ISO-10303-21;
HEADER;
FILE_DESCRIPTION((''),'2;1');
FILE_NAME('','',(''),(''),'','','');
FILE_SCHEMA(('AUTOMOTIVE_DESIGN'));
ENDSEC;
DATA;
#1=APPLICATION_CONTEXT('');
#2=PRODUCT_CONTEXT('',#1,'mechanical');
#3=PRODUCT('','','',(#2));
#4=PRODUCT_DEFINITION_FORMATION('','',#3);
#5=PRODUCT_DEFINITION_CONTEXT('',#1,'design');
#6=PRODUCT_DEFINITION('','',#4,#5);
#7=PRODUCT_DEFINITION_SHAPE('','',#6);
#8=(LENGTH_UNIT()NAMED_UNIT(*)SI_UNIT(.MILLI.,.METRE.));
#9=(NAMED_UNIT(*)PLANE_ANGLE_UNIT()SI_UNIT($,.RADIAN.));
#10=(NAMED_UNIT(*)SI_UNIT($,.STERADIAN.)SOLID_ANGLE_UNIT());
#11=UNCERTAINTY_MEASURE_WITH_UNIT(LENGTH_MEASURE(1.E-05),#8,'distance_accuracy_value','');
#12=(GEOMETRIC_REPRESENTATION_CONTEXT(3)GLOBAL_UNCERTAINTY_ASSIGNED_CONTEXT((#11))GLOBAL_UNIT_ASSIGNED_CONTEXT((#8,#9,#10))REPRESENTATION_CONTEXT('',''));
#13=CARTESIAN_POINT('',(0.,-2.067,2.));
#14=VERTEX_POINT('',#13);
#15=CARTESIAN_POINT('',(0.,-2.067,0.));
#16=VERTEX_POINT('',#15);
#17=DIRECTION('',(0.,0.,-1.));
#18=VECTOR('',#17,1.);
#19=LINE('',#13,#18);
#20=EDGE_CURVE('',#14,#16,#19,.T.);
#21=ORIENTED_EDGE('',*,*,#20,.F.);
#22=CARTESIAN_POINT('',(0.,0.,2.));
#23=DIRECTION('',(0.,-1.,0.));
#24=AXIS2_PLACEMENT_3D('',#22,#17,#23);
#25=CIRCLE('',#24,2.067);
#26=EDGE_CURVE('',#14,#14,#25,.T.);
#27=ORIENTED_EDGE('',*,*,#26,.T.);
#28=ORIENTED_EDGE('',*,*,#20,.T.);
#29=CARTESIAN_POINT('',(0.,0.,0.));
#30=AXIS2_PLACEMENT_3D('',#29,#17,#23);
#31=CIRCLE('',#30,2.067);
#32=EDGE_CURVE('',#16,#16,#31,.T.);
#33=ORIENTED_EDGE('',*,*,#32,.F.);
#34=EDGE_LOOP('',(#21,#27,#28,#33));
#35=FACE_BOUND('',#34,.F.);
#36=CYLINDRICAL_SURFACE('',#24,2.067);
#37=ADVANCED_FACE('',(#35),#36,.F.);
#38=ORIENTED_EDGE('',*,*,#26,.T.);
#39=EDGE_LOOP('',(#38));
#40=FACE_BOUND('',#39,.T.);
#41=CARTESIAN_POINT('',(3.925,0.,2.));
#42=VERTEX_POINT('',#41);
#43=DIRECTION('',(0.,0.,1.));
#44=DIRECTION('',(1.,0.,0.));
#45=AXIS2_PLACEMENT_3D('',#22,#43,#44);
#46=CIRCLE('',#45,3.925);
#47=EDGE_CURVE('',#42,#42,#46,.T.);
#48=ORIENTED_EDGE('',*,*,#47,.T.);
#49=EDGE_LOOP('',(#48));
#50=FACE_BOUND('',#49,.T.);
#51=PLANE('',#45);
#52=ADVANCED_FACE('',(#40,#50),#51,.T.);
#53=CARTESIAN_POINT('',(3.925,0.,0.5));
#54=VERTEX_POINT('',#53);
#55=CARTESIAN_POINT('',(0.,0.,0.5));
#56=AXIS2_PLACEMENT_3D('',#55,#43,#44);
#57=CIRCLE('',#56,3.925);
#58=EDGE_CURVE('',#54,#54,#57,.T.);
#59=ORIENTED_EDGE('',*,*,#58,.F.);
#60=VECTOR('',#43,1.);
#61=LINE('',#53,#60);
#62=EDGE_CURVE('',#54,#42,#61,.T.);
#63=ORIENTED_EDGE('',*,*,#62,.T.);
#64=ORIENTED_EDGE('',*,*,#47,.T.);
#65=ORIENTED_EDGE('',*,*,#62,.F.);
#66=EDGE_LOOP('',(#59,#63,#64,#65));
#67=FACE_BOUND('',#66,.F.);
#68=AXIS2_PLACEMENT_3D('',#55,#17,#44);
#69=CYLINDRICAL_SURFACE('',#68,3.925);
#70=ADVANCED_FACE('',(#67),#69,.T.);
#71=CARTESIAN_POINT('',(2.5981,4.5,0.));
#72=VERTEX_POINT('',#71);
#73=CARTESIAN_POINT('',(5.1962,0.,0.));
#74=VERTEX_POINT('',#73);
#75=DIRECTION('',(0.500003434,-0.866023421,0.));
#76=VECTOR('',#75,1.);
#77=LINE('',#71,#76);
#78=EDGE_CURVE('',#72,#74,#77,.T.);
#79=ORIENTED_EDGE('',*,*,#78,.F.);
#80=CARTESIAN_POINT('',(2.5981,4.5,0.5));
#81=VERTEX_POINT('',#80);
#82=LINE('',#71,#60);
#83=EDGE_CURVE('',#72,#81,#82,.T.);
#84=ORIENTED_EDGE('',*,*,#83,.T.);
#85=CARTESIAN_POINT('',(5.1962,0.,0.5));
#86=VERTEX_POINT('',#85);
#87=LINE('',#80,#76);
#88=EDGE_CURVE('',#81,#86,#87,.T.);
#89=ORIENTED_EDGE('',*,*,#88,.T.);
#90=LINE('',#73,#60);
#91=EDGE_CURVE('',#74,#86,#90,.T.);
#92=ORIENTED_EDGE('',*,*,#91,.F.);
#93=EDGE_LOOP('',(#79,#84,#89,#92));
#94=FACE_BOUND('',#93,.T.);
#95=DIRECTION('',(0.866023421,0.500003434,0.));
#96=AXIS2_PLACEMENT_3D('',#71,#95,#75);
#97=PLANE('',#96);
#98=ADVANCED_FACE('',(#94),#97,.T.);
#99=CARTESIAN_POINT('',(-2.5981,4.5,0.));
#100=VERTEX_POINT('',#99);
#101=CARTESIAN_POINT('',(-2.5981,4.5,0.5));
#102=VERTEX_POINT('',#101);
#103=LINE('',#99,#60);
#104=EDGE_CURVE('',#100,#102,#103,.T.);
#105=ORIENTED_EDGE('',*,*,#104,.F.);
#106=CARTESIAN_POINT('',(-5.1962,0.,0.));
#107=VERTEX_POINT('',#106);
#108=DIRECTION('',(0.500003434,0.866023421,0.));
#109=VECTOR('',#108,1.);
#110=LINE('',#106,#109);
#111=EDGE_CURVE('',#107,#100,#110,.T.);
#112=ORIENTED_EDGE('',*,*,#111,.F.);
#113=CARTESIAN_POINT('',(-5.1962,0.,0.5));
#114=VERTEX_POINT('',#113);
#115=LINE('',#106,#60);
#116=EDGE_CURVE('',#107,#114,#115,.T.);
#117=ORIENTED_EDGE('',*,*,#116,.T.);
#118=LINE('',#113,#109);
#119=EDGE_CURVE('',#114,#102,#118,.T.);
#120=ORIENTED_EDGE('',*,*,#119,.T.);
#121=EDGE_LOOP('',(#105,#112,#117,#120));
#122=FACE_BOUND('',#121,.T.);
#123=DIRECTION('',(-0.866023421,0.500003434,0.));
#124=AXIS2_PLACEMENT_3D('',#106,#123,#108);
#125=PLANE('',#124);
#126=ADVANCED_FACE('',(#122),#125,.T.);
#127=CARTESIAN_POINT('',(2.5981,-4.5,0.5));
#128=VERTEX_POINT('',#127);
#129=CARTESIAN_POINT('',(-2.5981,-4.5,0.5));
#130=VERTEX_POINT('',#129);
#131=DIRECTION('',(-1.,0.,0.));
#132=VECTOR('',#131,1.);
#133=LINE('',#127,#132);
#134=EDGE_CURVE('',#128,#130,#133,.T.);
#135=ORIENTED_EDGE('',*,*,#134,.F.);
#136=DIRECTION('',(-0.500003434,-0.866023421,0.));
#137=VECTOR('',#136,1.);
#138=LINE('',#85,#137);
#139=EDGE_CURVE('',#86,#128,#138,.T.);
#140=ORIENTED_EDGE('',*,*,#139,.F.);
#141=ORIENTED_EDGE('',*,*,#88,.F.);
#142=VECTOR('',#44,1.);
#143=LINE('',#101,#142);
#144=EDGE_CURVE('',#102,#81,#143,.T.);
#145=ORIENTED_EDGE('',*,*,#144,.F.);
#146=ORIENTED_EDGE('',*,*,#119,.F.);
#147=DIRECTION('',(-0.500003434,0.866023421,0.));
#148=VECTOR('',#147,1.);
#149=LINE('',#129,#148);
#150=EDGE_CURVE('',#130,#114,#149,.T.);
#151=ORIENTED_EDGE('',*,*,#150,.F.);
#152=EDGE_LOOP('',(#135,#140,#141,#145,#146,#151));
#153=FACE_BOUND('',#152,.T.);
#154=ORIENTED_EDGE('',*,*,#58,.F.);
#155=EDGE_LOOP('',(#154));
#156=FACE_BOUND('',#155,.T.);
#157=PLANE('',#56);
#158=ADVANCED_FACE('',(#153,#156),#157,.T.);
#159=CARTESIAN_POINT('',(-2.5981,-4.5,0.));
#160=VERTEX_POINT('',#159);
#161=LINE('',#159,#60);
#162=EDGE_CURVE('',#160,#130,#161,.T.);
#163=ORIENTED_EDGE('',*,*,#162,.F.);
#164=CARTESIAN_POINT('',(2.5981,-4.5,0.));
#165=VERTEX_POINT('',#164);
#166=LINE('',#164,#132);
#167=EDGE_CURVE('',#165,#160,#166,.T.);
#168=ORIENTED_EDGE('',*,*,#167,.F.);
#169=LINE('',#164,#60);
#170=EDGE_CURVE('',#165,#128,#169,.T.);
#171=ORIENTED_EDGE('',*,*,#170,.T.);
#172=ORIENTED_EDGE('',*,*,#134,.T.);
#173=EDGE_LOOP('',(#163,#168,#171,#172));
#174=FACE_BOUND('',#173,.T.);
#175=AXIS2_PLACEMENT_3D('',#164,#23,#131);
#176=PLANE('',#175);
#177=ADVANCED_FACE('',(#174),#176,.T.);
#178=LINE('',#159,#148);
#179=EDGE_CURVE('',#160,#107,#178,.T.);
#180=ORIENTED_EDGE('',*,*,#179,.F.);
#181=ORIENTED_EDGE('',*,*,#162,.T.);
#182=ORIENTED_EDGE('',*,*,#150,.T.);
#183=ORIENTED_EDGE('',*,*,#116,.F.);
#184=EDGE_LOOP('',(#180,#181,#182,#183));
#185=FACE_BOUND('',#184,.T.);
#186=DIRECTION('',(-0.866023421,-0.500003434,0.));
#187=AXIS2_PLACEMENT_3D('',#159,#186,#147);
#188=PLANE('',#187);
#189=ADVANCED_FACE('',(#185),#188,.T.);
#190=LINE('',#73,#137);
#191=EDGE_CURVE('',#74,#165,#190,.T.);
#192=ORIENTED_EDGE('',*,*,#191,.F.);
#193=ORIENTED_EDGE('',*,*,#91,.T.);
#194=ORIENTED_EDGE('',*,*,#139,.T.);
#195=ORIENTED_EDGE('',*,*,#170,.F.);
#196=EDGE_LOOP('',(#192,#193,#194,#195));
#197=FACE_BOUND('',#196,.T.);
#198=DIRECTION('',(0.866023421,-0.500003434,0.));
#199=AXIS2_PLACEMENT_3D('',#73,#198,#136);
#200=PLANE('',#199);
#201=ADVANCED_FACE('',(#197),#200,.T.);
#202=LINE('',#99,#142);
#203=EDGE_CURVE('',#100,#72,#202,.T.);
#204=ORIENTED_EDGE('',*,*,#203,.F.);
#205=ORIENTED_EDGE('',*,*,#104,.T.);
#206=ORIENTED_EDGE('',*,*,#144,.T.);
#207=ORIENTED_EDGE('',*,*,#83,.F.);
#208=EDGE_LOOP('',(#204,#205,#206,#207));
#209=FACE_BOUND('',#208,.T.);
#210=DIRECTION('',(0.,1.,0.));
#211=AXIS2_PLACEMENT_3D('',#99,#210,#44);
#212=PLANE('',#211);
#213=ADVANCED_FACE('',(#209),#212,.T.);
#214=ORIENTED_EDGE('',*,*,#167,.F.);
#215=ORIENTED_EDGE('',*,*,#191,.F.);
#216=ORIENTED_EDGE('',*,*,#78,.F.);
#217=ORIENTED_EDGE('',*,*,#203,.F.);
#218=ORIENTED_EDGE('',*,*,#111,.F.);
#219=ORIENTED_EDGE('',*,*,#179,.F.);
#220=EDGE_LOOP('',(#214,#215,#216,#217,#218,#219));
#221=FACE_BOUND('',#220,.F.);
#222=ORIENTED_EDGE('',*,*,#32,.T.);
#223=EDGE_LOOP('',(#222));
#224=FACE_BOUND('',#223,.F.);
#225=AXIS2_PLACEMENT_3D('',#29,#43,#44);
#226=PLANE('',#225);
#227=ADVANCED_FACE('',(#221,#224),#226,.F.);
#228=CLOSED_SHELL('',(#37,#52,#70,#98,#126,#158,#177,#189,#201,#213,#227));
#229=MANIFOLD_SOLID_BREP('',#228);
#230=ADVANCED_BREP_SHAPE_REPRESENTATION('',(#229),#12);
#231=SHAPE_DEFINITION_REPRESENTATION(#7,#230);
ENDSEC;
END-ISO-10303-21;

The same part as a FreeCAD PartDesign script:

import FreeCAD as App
import Part
import Sketcher

V = App.Vector
Q = App.Units.Quantity


def add_polygon(sketch, points):
    """Adds a closed chain of lines whose ends are joined by coincident constraints."""
    first, n = sketch.GeometryCount, len(points)
    for a, b in zip(points, points[1:] + points[:1]):
        sketch.addGeometry(Part.LineSegment(App.Vector(*a, 0), App.Vector(*b, 0)), False)
    for i in range(n):
        sketch.addConstraint(Sketcher.Constraint("Coincident", first + i, 2, first + (i + 1) % n, 1))

doc = App.newDocument("Part")
params = doc.addObject("Spreadsheet::Sheet", "Params")
for row, (alias, value) in enumerate([
    ("pad1_length", "0.5 mm"),
    ("sketch2_diameter", "7.85 mm"),
    ("pad2_length", "1.5 mm"),
    ("hole_diameter", "4.134 mm"),
    ("hole_depth", "2 mm"),
], start=1):
    params.set(f"A{row}", alias)
    params.set(f"B{row}", "=" + value)
    params.setAlias(f"B{row}", alias)

body = doc.addObject("PartDesign::Body", "Body")

# Sketch on XY plane
sketch1 = body.newObject("Sketcher::SketchObject", "Sketch")
sketch1.AttachmentSupport = (doc.getObject("XY_Plane"), [""])
sketch1.MapMode = "FlatFace"
add_polygon(sketch1, [(3, -4), (5, 0), (3, 4), (-3, 4), (-5, 0), (-3, -4)])  # lines 0-5
sketch1.addConstraint([
    Sketcher.Constraint("Horizontal", 2),
    Sketcher.Constraint("Horizontal", 5),
    Sketcher.Constraint("Symmetric", 0, 2, 3, 2, -1, 1),
    Sketcher.Constraint("Symmetric", 1, 2, 4, 2, -1, 1),
    Sketcher.Constraint("PointOnObject", 0, 2, -1),
    Sketcher.Constraint("Parallel", 0, 3),
    Sketcher.Constraint("Vertical", 2, 2, 4, 2),
    Sketcher.Constraint("DistanceY", 4, 2, 2, 2, 9.0),
    Sketcher.Constraint("Angle", 0, Q("59.9998 deg")),
    Sketcher.Constraint("DistanceX", 2, 2, 2, 1, 5.1962),
])
pad1 = body.newObject("PartDesign::Pad", "Pad")
pad1.Profile = sketch1
pad1.setExpression("Length", "Params.pad1_length")

# Sketch on XY plane
sketch2 = body.newObject("Sketcher::SketchObject", "Sketch001")
sketch2.AttachmentSupport = (doc.getObject("XY_Plane"), [""])
sketch2.MapMode = "FlatFace"
sketch2.AttachmentOffset = App.Placement(V(0, 0, 0.5), App.Rotation())
sketch2.addGeometry(Part.Circle(V(0, 0, 0), V(0, 0, 1), 3.9), False)
sketch2.addConstraint([
    Sketcher.Constraint("Coincident", 0, 3, -1, 1),
    Sketcher.Constraint("Diameter", 0, 7.85),
])
sketch2.setExpression("Constraints[1]", "Params.sketch2_diameter")
pad2 = body.newObject("PartDesign::Pad", "Pad001")
pad2.Profile = sketch2
pad2.setExpression("Length", "Params.pad2_length")

# Sketch on XY plane
sketch3 = body.newObject("Sketcher::SketchObject", "Sketch002")
sketch3.AttachmentSupport = (doc.getObject("XY_Plane"), [""])
sketch3.MapMode = "FlatFace"
sketch3.AttachmentOffset = App.Placement(V(0, 0, 2), App.Rotation())
sketch3.addGeometry(Part.Circle(V(0, 0, 0), V(0, 0, 1), 2.1), False)
sketch3.addConstraint([
    Sketcher.Constraint("Coincident", 0, 3, -1, 1),
    Sketcher.Constraint("Diameter", 0, 4.134),
])
doc.recompute()
hole = body.newObject("PartDesign::Hole", "Hole")
hole.Profile = sketch3
hole.ThreadType = "None"
hole.setExpression("Diameter", "Params.hole_diameter")
hole.DepthType = "Dimension"
hole.setExpression("Depth", "Params.hole_depth")
hole.DrillPoint = "Flat"

doc.recompute()
